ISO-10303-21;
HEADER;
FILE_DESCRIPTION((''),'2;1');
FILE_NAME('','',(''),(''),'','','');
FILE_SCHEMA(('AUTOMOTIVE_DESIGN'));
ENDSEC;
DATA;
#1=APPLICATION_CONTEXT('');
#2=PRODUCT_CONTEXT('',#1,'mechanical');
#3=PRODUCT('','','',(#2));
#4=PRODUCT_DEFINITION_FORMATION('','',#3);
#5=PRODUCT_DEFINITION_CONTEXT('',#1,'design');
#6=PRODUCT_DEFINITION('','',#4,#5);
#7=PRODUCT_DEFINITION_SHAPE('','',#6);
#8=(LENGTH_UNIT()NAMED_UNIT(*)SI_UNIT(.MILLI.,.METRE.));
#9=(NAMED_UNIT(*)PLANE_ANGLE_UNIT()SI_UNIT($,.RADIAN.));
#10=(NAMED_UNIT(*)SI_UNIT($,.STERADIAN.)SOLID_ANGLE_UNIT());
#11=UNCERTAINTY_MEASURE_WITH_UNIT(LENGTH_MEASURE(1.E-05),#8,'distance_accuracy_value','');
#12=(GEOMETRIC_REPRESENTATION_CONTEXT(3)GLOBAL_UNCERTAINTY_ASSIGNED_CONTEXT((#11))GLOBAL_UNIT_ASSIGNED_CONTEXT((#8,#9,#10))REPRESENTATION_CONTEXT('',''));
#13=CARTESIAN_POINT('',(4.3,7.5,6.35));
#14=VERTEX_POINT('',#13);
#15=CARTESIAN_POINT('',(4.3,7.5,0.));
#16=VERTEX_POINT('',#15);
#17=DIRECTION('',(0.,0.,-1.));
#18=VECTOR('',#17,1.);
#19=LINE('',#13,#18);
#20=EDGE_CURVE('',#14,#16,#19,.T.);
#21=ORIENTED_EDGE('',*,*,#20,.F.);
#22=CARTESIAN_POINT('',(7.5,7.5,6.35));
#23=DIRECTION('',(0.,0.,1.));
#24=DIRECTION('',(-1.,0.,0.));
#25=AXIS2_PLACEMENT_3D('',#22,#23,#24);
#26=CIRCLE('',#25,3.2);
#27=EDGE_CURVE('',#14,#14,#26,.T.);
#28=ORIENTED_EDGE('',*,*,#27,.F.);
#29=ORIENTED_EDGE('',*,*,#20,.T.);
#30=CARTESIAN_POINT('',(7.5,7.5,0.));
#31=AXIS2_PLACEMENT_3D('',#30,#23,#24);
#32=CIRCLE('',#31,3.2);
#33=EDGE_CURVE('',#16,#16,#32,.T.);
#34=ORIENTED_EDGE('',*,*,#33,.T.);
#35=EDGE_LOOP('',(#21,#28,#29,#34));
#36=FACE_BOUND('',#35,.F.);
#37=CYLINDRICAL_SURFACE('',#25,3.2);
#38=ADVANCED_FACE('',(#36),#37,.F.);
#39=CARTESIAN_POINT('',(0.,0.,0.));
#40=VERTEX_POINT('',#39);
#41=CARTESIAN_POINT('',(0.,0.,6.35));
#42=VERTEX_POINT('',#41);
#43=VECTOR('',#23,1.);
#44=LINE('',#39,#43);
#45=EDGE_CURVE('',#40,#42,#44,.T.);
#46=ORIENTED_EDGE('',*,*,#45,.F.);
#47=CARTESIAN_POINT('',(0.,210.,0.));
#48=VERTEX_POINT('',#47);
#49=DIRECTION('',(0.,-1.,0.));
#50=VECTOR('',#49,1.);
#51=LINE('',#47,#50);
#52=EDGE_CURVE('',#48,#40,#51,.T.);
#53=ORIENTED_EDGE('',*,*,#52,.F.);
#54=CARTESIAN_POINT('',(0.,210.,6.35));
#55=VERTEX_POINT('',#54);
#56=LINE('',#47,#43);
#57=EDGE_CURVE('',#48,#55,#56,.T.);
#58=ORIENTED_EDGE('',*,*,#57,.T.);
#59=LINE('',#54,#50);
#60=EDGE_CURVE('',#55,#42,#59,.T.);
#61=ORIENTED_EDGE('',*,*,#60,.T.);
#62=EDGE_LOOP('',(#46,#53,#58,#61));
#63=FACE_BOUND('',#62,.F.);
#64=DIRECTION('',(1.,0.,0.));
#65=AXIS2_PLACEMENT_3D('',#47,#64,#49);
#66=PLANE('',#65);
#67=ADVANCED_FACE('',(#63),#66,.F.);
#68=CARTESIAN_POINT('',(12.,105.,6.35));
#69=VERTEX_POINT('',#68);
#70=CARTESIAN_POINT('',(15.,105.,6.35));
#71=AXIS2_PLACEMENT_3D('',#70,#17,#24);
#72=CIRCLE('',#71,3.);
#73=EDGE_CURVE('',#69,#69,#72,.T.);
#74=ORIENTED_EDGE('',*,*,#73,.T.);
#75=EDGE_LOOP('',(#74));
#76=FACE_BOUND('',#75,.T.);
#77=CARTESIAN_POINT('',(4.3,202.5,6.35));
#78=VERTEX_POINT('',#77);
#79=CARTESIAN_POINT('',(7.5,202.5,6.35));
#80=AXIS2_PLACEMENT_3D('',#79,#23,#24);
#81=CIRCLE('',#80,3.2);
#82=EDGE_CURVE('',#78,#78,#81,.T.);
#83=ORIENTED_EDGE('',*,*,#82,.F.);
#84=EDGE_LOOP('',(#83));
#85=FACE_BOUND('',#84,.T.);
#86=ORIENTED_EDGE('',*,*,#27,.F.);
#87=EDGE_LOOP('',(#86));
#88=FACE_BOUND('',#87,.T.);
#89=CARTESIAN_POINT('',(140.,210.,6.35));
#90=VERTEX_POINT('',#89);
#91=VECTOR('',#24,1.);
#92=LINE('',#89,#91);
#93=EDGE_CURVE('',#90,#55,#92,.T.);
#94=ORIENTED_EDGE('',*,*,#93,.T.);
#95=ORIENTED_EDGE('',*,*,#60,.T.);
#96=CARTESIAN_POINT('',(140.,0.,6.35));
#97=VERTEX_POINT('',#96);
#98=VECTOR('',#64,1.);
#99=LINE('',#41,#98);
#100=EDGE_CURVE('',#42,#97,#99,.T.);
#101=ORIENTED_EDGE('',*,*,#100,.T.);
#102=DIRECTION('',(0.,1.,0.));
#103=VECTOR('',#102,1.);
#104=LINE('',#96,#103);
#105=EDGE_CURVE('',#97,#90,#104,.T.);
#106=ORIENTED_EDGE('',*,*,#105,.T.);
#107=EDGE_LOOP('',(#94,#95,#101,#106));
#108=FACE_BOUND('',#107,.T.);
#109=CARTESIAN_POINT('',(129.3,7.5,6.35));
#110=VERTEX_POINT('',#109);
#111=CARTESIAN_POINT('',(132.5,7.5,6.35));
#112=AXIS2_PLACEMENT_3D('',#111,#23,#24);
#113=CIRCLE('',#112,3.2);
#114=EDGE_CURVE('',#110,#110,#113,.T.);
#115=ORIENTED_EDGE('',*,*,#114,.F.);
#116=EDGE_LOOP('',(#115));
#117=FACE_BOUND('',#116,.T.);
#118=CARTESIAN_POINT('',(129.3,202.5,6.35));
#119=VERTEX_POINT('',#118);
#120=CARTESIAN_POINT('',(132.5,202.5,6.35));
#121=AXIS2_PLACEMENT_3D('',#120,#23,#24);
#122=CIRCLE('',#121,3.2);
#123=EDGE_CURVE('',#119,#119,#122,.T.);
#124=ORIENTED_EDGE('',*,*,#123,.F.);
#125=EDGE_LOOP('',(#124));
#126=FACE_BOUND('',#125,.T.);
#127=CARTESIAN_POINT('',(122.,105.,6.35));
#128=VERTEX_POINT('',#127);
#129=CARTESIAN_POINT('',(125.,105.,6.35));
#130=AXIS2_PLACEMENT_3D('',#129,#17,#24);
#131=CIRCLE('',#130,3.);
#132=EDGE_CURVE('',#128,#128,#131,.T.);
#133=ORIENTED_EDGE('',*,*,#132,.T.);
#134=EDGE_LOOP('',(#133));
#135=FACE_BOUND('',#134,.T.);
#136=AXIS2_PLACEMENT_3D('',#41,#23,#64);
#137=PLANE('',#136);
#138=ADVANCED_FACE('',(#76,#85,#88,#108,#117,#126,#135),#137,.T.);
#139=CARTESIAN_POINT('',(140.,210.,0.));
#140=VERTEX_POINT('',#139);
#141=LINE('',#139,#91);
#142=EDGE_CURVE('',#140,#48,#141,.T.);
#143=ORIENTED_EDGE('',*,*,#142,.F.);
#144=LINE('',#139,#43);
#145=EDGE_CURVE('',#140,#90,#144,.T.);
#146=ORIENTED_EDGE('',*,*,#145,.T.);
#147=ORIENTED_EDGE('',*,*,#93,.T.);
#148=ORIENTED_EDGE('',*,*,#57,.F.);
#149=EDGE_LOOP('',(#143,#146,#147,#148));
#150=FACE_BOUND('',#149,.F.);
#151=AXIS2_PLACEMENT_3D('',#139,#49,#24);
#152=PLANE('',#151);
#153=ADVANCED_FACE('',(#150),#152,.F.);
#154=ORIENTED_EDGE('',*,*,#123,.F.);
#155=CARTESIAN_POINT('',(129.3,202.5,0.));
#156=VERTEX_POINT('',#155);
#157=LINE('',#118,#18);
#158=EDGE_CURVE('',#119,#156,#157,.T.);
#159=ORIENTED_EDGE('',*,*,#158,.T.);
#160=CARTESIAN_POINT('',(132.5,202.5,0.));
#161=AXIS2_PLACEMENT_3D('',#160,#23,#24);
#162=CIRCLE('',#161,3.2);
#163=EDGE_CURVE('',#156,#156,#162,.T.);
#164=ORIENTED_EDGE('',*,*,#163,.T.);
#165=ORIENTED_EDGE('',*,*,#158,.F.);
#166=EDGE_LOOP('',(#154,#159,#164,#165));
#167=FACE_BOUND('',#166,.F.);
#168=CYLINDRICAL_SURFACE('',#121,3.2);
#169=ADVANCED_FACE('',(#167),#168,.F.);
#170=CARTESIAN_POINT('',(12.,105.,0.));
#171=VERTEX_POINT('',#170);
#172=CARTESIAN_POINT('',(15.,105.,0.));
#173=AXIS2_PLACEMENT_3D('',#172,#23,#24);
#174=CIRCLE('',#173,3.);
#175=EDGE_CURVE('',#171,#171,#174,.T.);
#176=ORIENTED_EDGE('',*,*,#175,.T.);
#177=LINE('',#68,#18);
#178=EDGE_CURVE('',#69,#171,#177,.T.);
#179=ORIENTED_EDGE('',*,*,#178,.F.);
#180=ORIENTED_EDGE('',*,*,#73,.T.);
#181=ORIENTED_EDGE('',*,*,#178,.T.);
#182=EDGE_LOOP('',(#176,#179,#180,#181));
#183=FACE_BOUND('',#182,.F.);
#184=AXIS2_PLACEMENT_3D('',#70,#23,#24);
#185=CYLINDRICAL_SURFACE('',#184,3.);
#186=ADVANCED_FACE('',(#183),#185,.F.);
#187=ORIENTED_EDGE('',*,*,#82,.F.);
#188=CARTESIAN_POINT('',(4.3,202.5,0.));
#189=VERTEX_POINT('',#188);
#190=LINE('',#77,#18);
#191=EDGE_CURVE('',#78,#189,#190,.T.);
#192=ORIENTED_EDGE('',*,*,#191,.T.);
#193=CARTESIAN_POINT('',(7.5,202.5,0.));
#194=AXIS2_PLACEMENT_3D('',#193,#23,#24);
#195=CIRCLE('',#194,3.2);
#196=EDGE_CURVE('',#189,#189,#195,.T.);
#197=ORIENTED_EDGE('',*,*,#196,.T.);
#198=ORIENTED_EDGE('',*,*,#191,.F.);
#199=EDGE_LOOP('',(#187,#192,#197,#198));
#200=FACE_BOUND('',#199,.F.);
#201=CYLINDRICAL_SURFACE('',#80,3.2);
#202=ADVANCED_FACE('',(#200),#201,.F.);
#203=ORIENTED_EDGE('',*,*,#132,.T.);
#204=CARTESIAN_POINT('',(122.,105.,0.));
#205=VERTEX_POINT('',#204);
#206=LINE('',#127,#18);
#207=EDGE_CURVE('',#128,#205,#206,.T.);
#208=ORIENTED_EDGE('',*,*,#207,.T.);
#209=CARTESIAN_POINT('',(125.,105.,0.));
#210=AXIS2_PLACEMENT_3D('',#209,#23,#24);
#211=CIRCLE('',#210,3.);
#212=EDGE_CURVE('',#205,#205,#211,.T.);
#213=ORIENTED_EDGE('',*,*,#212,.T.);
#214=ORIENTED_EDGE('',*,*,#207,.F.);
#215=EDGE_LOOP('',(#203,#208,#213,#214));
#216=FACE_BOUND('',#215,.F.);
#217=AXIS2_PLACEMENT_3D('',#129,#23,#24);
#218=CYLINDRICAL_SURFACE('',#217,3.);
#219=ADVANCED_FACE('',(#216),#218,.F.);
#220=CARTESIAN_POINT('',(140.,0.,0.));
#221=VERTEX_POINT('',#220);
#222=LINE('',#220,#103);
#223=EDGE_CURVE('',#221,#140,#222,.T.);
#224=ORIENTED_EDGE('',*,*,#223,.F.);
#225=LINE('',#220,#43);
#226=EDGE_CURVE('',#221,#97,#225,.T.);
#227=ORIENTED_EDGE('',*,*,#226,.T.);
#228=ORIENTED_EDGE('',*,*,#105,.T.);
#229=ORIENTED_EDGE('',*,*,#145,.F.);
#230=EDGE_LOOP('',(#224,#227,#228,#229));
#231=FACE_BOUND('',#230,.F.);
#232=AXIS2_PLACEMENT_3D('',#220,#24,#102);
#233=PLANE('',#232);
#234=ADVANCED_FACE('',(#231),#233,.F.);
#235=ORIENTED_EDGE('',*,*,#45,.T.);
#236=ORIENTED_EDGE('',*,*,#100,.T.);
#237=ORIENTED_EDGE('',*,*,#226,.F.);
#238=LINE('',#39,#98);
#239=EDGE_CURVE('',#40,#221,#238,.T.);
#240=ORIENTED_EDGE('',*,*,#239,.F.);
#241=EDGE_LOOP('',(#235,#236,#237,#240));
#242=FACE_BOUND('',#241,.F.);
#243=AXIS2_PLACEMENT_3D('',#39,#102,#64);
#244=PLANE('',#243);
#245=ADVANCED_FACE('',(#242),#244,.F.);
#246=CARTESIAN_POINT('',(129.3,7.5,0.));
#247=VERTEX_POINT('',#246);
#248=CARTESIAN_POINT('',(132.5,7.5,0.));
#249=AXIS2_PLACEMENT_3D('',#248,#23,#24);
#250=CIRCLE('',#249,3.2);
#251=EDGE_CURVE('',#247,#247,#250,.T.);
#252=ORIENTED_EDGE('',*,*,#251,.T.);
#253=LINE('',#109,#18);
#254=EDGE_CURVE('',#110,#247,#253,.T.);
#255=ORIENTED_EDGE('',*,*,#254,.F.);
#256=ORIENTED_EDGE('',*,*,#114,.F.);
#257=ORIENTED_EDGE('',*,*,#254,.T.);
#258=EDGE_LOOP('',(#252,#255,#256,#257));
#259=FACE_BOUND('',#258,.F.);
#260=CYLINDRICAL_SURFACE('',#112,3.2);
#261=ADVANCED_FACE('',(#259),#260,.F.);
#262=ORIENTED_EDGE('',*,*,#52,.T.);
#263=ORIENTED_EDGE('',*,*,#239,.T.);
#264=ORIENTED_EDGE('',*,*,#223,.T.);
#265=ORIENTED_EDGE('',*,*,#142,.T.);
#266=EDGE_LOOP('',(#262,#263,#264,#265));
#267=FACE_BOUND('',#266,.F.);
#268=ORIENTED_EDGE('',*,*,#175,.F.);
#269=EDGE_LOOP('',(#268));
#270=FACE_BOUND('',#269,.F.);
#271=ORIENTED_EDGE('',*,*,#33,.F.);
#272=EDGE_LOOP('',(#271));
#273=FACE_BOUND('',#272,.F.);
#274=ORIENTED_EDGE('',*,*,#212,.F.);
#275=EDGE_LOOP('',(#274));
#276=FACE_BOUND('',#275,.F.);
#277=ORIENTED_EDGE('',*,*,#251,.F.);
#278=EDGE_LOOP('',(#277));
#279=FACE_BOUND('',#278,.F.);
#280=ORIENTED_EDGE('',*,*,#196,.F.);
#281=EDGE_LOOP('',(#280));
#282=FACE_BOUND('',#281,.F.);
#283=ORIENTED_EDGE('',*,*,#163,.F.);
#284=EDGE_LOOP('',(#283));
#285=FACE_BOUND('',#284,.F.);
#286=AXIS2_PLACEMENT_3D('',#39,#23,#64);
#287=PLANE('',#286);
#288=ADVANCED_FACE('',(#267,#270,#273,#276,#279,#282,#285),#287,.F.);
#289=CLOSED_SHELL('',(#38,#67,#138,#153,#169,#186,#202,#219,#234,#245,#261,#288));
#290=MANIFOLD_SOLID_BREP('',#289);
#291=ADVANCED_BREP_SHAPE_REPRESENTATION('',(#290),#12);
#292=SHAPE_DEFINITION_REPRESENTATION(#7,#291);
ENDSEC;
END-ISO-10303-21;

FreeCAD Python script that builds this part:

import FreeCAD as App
import Part
import Sketcher
from FreeCAD import Vector


def add_polygon(sketch, points):
    """Adds a closed chain of lines whose ends are joined by coincident constraints."""
    first, n = sketch.GeometryCount, len(points)
    for a, b in zip(points, points[1:] + points[:1]):
        sketch.addGeometry(Part.LineSegment(App.Vector(*a, 0), App.Vector(*b, 0)), False)
    for i in range(n):
        sketch.addConstraint(Sketcher.Constraint("Coincident", first + i, 2, first + (i + 1) % n, 1))

doc = App.newDocument("Part")
params = doc.addObject("Spreadsheet::Sheet", "Params")
for row, (alias, value) in enumerate([
    ("sketch1_width", "140 mm"),
    ("sketch1_height", "210 mm"),
    ("pad1_length", "6.35 mm"),
    ("sketch2_diameter", "6.4 mm"),
    ("pocket1_length", "10 mm"),
    ("sketch3_diameter", "6 mm"),
    ("pocket2_length", "10 mm"),
], start=1):
    params.set(f"A{row}", alias)
    params.set(f"B{row}", "=" + value)
    params.setAlias(f"B{row}", alias)

body = doc.addObject("PartDesign::Body", "Body")

# Sketch on XY plane
sketch1 = body.newObject("Sketcher::SketchObject", "Sketch")
sketch1.AttachmentSupport = (doc.getObject("XY_Plane"), [""])
sketch1.MapMode = "FlatFace"
add_polygon(sketch1, [(0, 210), (0, 0), (140, 0), (140, 210)])  # lines 0-3
sketch1.addConstraint([
    Sketcher.Constraint("Vertical", 0),
    Sketcher.Constraint("Horizontal", 1),
    Sketcher.Constraint("Vertical", 2),
    Sketcher.Constraint("Horizontal", 3),
    Sketcher.Constraint("Coincident", 0, 2, -1, 1),
    Sketcher.Constraint("DistanceX", 1, 1, 1, 2, 140.0),
    Sketcher.Constraint("DistanceY", 0, 2, 0, 1, 210.0),
])
sketch1.setExpression("Constraints[9]", "Params.sketch1_width")
sketch1.setExpression("Constraints[10]", "Params.sketch1_height")
pad1 = body.newObject("PartDesign::Pad", "Pad")
pad1.Profile = sketch1
pad1.setExpression("Length", "Params.pad1_length")

# Sketch on XY plane
sketch2 = body.newObject("Sketcher::SketchObject", "Sketch001")
sketch2.AttachmentSupport = (doc.getObject("XY_Plane"), [""])
sketch2.MapMode = "FlatFace"
sketch2.AttachmentOffset = App.Placement(Vector(0, 0, 6.35), App.Rotation())
sketch2.addGeometry([
    Part.Circle(Vector(132.5, 7.5, 0), Vector(0, 0, 1), 3.2),
    Part.Circle(Vector(7.5, 7.5, 0), Vector(0, 0, 1), 3.2),
    Part.Circle(Vector(132.5, 202.5, 0), Vector(0, 0, 1), 3.2),
    Part.Circle(Vector(7.5, 202.5, 0), Vector(0, 0, 1), 3.2),
], False)
sketch2.addConstraint([
    Sketcher.Constraint("Equal", 0, 1),
    Sketcher.Constraint("Equal", 1, 2),
    Sketcher.Constraint("Equal", 2, 3),
    Sketcher.Constraint("Horizontal", 0, 3, 1, 3),
    Sketcher.Constraint("Horizontal", 2, 3, 3, 3),
    Sketcher.Constraint("Vertical", 0, 3, 2, 3),
    Sketcher.Constraint("Vertical", 1, 3, 3, 3),
    Sketcher.Constraint("Diameter", 0, 6.4),
    Sketcher.Constraint("DistanceY", -1, 1, 0, 3, 7.5),
    Sketcher.Constraint("DistanceX", -1, 1, 1, 3, 7.5),
    Sketcher.Constraint("DistanceX", 1, 3, 0, 3, 125.0),
    Sketcher.Constraint("DistanceY", 0, 3, 2, 3, 195.0),
])
sketch2.setExpression("Constraints[7]", "Params.sketch2_diameter")
pocket1 = body.newObject("PartDesign::Pocket", "Pocket")
pocket1.Profile = sketch2
pocket1.setExpression("Length", "Params.pocket1_length")

# Sketch on XY plane
sketch3 = body.newObject("Sketcher::SketchObject", "Sketch002")
sketch3.AttachmentSupport = (doc.getObject("XY_Plane"), [""])
sketch3.MapMode = "FlatFace"
sketch3.AttachmentOffset = App.Placement(Vector(0, 0, 6.35), App.Rotation())
sketch3.addGeometry([
    Part.Circle(Vector(15, 105, 0), Vector(0, 0, 1), 3),
    Part.Circle(Vector(125, 105, 0), Vector(0, 0, 1), 3),
], False)
sketch3.addConstraint([
    Sketcher.Constraint("Equal", 0, 1),
    Sketcher.Constraint("Horizontal", 0, 3, 1, 3),
    Sketcher.Constraint("Diameter", 0, 6.0),
    Sketcher.Constraint("DistanceX", -1, 1, 0, 3, 15.0),
    Sketcher.Constraint("DistanceX", 0, 3, 1, 3, 110.0),
    Sketcher.Constraint("DistanceY", -1, 1, 0, 3, 105.0),
])
sketch3.setExpression("Constraints[2]", "Params.sketch3_diameter")
pocket2 = body.newObject("PartDesign::Pocket", "Pocket001")
pocket2.Profile = sketch3
pocket2.setExpression("Length", "Params.pocket2_length")

doc.recompute()
